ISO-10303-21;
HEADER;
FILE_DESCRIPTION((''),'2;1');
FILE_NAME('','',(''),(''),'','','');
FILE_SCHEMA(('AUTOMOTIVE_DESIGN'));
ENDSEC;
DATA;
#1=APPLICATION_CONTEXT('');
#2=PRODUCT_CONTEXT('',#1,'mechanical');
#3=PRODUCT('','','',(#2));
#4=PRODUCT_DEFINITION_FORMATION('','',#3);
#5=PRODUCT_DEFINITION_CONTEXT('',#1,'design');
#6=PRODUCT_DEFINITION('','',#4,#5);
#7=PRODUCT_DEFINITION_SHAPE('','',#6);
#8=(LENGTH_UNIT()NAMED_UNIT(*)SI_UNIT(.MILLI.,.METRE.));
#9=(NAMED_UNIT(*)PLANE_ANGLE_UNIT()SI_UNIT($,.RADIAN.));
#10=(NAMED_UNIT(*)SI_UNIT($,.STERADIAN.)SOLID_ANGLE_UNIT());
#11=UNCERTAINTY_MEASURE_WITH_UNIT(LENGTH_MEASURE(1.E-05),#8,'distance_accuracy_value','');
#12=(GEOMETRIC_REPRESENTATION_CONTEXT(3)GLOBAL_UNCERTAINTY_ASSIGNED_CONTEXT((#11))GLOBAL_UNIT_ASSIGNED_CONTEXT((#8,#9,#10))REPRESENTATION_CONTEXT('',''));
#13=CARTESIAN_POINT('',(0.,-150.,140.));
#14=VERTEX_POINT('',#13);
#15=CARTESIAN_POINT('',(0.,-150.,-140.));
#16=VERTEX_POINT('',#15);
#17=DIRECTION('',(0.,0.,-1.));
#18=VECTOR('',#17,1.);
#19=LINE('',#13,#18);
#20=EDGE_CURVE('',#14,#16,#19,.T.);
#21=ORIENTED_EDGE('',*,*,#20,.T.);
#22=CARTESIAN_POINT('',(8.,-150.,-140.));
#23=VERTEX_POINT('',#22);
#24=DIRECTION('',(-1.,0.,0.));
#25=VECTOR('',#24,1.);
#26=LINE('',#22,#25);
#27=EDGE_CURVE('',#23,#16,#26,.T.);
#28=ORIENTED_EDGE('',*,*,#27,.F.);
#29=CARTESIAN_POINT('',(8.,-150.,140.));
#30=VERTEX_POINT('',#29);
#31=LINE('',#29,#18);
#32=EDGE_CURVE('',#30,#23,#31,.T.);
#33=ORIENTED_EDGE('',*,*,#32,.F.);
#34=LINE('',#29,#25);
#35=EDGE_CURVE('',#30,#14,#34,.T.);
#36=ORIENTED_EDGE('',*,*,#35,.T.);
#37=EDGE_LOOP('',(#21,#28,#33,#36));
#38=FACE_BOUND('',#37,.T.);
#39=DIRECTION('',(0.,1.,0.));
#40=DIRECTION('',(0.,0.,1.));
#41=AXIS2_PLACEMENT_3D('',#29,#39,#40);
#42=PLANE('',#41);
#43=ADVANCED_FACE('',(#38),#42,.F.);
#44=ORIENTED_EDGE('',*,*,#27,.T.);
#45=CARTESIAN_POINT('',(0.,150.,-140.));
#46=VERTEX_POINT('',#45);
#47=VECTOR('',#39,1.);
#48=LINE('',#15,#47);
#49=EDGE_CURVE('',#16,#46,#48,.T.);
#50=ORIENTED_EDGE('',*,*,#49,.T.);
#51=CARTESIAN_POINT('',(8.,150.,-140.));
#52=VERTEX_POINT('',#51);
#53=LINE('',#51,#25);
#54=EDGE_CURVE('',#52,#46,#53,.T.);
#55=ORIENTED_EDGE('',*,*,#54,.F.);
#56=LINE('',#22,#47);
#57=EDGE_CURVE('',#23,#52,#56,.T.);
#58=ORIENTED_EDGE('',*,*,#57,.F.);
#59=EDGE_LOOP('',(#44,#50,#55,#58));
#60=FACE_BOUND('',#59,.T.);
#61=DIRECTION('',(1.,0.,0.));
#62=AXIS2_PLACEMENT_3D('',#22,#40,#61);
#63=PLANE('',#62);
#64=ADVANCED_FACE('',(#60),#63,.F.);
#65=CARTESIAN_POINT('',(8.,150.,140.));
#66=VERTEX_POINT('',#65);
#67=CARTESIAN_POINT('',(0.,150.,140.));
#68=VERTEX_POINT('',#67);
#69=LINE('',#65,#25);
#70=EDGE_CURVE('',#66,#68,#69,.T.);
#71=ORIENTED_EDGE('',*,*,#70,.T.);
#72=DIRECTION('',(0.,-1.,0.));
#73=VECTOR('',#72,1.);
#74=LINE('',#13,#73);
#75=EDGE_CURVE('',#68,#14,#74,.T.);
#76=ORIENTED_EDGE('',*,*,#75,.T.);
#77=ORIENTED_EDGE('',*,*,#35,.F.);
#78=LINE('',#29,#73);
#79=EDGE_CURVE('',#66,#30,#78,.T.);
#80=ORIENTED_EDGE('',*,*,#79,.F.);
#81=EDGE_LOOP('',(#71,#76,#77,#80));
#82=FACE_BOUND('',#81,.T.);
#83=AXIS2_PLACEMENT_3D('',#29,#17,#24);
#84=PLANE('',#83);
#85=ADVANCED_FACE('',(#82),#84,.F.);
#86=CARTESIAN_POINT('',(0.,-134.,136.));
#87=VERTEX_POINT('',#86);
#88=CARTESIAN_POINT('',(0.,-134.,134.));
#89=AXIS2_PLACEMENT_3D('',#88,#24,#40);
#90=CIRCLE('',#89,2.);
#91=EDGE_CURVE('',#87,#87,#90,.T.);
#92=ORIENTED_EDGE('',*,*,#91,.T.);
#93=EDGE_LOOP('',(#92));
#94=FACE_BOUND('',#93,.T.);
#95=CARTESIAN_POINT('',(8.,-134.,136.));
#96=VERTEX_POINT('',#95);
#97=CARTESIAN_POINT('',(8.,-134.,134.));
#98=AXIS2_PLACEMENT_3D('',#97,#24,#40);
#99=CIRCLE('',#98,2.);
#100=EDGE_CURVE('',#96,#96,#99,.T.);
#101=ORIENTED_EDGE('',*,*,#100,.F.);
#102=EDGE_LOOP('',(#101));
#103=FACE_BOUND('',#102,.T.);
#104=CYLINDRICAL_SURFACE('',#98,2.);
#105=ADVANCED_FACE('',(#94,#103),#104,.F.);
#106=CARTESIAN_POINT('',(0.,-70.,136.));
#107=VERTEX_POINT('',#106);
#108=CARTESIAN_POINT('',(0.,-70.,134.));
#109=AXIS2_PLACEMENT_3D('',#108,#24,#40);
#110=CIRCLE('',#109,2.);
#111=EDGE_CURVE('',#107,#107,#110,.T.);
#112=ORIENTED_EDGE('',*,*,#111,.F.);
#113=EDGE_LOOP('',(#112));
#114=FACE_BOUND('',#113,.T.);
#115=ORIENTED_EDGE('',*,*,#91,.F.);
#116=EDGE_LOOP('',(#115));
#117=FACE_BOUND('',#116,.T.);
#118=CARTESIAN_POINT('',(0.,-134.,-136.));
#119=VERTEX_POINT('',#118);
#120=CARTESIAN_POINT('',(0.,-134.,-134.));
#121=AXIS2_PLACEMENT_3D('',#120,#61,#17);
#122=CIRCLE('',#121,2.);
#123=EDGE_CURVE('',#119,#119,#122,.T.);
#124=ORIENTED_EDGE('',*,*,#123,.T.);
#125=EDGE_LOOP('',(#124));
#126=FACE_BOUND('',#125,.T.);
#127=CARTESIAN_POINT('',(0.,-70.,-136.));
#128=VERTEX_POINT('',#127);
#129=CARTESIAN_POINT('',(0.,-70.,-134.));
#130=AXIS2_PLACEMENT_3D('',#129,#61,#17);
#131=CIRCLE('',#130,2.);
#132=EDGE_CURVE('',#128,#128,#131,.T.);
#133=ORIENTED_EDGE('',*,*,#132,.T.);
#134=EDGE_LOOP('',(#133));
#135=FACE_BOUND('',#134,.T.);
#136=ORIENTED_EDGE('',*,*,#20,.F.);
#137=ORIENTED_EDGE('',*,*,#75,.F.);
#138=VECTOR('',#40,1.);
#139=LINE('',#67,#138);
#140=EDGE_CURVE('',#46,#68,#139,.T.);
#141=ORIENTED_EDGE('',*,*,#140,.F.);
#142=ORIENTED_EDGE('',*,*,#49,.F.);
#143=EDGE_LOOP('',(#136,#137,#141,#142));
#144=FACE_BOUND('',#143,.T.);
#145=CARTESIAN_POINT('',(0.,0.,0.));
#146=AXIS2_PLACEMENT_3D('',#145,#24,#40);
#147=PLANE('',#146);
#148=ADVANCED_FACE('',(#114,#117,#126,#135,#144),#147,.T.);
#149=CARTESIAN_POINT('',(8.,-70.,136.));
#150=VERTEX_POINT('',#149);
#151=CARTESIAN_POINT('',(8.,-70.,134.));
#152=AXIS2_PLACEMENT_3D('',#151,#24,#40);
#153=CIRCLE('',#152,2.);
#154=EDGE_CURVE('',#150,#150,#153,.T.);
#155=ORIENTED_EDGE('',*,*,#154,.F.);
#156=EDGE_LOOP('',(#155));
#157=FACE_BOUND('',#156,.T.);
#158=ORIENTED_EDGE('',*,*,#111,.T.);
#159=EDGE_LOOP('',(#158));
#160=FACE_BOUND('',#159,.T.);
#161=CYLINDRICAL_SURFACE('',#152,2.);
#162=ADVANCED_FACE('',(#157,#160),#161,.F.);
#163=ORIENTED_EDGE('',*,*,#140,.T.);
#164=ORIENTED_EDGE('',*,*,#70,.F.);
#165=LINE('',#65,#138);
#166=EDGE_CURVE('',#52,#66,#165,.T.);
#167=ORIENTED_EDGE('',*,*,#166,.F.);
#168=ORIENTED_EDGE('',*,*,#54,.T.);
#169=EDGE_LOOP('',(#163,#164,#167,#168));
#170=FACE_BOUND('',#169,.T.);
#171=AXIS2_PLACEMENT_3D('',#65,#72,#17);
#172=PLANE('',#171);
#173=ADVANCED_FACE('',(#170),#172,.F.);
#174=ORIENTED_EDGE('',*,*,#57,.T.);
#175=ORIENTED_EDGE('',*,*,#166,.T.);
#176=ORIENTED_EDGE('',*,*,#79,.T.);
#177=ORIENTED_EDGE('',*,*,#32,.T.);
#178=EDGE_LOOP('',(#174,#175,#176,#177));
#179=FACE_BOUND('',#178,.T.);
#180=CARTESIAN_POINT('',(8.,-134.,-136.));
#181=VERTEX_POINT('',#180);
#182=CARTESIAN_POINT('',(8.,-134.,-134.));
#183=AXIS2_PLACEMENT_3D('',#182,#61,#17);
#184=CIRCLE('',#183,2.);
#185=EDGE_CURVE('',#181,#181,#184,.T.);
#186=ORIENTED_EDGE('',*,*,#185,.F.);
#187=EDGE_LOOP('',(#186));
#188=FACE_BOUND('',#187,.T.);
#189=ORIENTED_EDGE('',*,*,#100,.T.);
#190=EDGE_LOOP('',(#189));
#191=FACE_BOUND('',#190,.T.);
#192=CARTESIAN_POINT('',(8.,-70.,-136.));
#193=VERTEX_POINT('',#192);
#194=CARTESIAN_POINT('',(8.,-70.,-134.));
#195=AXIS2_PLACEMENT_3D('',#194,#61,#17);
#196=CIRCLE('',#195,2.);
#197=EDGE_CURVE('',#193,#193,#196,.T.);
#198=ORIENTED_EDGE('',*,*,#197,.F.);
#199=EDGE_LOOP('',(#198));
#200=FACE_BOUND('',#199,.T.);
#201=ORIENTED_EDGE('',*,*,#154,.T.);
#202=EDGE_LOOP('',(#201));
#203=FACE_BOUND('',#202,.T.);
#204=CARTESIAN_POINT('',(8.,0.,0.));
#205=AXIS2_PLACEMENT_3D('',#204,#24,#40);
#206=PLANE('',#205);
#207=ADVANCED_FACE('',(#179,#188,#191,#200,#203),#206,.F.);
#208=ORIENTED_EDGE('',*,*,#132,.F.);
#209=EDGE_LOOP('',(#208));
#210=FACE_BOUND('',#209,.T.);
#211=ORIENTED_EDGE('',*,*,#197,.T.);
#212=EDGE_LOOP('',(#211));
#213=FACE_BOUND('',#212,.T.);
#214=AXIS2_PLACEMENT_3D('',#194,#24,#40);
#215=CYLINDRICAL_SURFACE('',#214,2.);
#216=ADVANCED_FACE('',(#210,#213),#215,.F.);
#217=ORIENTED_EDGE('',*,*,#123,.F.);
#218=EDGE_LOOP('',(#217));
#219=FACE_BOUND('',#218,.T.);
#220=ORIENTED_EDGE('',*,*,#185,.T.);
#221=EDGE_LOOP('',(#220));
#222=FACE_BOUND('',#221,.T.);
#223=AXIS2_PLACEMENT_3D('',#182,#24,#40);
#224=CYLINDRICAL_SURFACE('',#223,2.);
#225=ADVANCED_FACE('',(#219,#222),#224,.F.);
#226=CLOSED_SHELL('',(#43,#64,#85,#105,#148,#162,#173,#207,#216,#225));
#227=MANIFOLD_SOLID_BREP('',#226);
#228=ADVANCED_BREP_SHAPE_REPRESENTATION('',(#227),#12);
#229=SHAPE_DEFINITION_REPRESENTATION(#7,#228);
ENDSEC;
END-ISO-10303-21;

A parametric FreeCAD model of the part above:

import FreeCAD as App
import Part
import Sketcher

doc = App.newDocument("Part")
body = doc.addObject("PartDesign::Body", "Body")

# Sketch on YZ plane
sketch1 = doc.addObject("Sketcher::SketchObject", "Sketch")
body.addObject(sketch1)
sketch1.AttachmentSupport = (doc.YZ_Plane, [""])
sketch1.MapMode = "FlatFace"
sketch1.addGeometry(Part.LineSegment(App.Vector(150, 140, 0), App.Vector(-150, 140, 0)), False)
sketch1.addGeometry(Part.LineSegment(App.Vector(-150, 140, 0), App.Vector(-150, -140, 0)), False)
sketch1.addGeometry(Part.LineSegment(App.Vector(-150, -140, 0), App.Vector(150, -140, 0)), False)
sketch1.addGeometry(Part.LineSegment(App.Vector(150, -140, 0), App.Vector(150, 140, 0)), False)
sketch1.addConstraint(Sketcher.Constraint("Coincident", 0, 2, 1, 1))
sketch1.addConstraint(Sketcher.Constraint("Coincident", 1, 2, 2, 1))
sketch1.addConstraint(Sketcher.Constraint("Coincident", 2, 2, 3, 1))
sketch1.addConstraint(Sketcher.Constraint("Coincident", 3, 2, 0, 1))
sketch1.addConstraint(Sketcher.Constraint("Horizontal", 0))
sketch1.addConstraint(Sketcher.Constraint("Vertical", 1))
sketch1.addConstraint(Sketcher.Constraint("Horizontal", 2))
sketch1.addConstraint(Sketcher.Constraint("Vertical", 3))
sketch1.addConstraint(Sketcher.Constraint("Symmetric", 0, 2, 2, 2, -1, 1))
sketch1.addConstraint(Sketcher.Constraint("DistanceX", 0, 2, 0, 1, 300.0))
sketch1.addConstraint(Sketcher.Constraint("DistanceY", 1, 2, 1, 1, 280.0))
pad1 = doc.addObject("PartDesign::Pad", "Pad")
body.addObject(pad1)
pad1.Profile = sketch1
pad1.Length = 8

# Sketch on YZ plane
sketch2 = doc.addObject("Sketcher::SketchObject", "Sketch001")
body.addObject(sketch2)
sketch2.AttachmentSupport = (doc.YZ_Plane, [""])
sketch2.MapMode = "FlatFace"
sketch2.addGeometry(Part.Circle(App.Vector(-134, -134, 0), App.Vector(0, 0, 1), 2), False)
sketch2.addGeometry(Part.Circle(App.Vector(-70, -134, 0), App.Vector(0, 0, 1), 2), False)
sketch2.addConstraint(Sketcher.Constraint("Equal", 0, 1))
sketch2.addConstraint(Sketcher.Constraint("Horizontal", 0, 3, 1, 3))
sketch2.addConstraint(Sketcher.Constraint("Diameter", 0, 4.0))
sketch2.addConstraint(Sketcher.Constraint("DistanceX", 0, 3, -1, 1, 134.0))
sketch2.addConstraint(Sketcher.Constraint("DistanceY", 0, 3, -1, 1, 134.0))
sketch2.addConstraint(Sketcher.Constraint("DistanceX", 1, 3, -1, 1, 70.0))
pocket1 = doc.addObject("PartDesign::Pocket", "Pocket")
body.addObject(pocket1)
pocket1.Profile = sketch2
pocket1.Type = "ThroughAll"
pocket1.Reversed = True
doc.recompute()

mirrored = doc.addObject("PartDesign::Mirrored", "Mirrored")
body.addObject(mirrored)
mirrored.Originals = [pocket1]
mirrored.MirrorPlane = (doc.XY_Plane, [""])
body.Tip = mirrored

doc.recompute()
